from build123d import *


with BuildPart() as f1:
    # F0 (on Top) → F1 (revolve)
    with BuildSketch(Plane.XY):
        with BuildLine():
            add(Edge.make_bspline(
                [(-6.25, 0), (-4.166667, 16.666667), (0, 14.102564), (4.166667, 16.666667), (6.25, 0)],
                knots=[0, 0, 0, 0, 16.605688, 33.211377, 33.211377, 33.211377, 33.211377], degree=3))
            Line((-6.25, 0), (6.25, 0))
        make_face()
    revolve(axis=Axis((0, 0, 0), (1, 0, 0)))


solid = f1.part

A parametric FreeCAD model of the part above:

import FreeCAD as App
import Part
import Sketcher

doc = App.newDocument("Part")
params = doc.addObject("Spreadsheet::Sheet", "Params")
for row, (alias, value) in enumerate([
    ("revolution_angle", "360 deg"),
], start=1):
    params.set(f"A{row}", alias)
    params.set(f"B{row}", "=" + value)
    params.setAlias(f"B{row}", alias)

body = doc.addObject("PartDesign::Body", "Body")

# Sketch on XY plane
sketch1 = body.newObject("Sketcher::SketchObject", "Sketch")
sketch1.AttachmentSupport = (doc.getObject("XY_Plane"), [""])
sketch1.MapMode = "FlatFace"
sketch1.addGeometry([
    Part.BSplineCurve([App.Vector(-6.25, 0, 0), App.Vector(-4.166667, 16.666667, 0), App.Vector(0, 14.102564, 0), App.Vector(4.166667, 16.666667, 0), App.Vector(6.25, 0, 0)], [4, 1, 4], [0, 16.605688, 33.211377], False, 3, [1, 1, 1, 1, 1], False),
    Part.LineSegment(App.Vector(-6.25, 0, 0), App.Vector(6.25, 0, 0)),
], False)
sketch1.addConstraint([
    Sketcher.Constraint("Block", 0),
    Sketcher.Constraint("Coincident", 0, 1, 1, 1),
    Sketcher.Constraint("Coincident", 1, 2, 0, 2),
])
revolution = body.newObject("PartDesign::Revolution", "Revolution")
revolution.Profile = sketch1
revolution.ReferenceAxis = (sketch1, ["H_Axis"])
revolution.setExpression("Angle", "Params.revolution_angle")

doc.recompute()
